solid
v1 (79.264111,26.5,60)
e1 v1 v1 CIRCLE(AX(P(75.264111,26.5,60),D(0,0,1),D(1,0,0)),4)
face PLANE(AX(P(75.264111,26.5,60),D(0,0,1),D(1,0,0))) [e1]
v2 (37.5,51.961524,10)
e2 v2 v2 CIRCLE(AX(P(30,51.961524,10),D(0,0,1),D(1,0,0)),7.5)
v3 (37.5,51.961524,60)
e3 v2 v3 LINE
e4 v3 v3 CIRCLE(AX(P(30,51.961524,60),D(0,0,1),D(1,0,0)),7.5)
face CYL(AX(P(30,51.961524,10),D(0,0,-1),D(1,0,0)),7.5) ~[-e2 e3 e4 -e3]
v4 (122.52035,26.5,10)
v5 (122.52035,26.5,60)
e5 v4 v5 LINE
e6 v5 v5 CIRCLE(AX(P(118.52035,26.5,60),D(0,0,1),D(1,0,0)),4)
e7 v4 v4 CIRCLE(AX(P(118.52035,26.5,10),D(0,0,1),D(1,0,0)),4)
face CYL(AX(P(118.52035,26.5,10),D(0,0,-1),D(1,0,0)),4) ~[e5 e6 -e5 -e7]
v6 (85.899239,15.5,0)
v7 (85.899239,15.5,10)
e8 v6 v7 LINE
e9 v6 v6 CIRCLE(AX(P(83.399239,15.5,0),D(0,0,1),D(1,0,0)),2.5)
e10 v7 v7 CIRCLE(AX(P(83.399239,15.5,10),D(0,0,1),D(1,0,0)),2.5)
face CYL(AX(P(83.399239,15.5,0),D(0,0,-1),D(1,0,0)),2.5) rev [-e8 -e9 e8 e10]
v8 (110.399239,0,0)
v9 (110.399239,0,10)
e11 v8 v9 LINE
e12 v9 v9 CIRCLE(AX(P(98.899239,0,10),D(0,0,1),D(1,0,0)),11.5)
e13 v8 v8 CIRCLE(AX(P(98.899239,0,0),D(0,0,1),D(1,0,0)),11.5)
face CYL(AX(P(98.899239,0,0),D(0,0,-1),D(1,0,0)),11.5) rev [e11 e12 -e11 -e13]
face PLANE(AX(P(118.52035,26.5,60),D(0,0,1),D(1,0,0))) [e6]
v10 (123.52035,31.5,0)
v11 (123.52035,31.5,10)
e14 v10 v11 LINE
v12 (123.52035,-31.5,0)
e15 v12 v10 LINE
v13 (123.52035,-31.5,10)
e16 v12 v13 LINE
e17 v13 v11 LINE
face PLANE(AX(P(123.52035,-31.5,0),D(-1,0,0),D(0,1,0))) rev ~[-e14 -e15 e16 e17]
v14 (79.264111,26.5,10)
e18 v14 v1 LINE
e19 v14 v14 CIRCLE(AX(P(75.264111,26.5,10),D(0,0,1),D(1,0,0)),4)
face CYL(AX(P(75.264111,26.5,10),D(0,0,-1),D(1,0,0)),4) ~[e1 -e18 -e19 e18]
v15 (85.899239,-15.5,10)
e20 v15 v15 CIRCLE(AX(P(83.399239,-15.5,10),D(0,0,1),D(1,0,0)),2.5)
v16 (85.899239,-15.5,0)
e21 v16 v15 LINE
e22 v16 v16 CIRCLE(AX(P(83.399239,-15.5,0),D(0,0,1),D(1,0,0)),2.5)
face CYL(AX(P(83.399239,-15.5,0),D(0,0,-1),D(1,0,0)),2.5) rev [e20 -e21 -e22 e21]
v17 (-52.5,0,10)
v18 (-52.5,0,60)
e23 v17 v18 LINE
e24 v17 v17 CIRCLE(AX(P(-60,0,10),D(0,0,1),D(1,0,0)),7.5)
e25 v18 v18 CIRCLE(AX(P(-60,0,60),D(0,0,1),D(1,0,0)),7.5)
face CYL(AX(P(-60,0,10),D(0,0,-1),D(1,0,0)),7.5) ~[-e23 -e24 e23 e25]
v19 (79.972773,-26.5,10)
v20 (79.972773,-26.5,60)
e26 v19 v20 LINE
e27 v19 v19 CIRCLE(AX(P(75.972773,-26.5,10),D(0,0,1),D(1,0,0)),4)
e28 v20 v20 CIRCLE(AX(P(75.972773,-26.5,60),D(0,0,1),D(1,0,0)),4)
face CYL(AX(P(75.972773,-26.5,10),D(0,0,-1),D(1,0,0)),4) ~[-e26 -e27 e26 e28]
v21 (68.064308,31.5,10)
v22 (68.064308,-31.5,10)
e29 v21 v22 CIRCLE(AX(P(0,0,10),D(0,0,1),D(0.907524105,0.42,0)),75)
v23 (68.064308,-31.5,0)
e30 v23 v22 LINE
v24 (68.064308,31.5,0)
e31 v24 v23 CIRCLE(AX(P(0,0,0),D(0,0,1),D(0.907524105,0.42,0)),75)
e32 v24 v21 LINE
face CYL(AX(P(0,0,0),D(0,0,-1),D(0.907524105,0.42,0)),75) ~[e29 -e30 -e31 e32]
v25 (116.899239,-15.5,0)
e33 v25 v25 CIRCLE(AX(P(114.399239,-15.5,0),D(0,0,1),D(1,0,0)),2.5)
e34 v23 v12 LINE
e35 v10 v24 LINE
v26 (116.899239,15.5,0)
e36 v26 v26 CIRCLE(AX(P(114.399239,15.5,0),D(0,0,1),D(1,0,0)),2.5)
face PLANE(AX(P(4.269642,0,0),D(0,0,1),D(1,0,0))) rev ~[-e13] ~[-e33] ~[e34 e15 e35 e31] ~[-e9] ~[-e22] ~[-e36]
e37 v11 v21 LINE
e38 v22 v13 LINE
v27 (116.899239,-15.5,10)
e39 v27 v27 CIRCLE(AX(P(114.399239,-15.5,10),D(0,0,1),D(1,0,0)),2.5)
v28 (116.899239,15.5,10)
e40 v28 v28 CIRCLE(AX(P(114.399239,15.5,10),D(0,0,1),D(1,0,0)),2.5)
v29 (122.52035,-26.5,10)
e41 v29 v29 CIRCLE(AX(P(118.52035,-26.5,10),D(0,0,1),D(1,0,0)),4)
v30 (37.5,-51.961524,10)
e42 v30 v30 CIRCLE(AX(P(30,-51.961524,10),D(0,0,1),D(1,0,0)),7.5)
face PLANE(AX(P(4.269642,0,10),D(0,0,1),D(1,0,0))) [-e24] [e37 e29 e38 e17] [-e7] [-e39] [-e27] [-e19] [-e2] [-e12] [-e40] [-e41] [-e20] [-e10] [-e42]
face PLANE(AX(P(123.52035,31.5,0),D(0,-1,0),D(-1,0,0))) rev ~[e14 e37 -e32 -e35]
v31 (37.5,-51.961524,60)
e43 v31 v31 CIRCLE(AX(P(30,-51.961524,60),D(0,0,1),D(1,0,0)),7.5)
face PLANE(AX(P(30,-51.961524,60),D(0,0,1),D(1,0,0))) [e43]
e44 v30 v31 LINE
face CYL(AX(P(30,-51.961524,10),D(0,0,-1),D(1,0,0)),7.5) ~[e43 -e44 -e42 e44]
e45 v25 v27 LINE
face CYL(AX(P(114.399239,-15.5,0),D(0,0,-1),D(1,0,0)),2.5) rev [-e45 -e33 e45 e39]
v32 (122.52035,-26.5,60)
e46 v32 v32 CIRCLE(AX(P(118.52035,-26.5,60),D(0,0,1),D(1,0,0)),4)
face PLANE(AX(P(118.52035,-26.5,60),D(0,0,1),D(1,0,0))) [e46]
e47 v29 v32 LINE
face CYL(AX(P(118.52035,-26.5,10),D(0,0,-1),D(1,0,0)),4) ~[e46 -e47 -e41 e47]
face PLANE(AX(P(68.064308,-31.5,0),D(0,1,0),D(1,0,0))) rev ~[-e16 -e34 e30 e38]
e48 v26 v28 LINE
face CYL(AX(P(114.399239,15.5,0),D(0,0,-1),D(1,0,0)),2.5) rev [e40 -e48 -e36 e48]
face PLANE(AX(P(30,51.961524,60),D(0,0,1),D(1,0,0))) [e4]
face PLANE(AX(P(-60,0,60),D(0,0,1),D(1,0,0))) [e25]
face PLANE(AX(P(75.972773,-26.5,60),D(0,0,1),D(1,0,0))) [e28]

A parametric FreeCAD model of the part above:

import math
import FreeCAD as App
import Part
import Sketcher

V = App.Vector
Q = App.Units.Quantity

doc = App.newDocument("Part")
body = doc.addObject("PartDesign::Body", "Body")

sketch1 = doc.addObject("Sketcher::SketchObject", "Sketch")
body.addObject(sketch1)
sketch1.AttachmentSupport = (doc.XY_Plane, [""])
sketch1.MapMode = "FlatFace"
sketch1.addGeometry(Part.ArcOfCircle(Part.Circle(V(0, 0, 0), V(0, 0, 1), 75), math.radians(24.834587), math.radians(335.165413)), False)
sketch1.addGeometry(Part.LineSegment(V(68.064308, -31.5, 0), V(123.52035, -31.5, 0)), False)
sketch1.addGeometry(Part.LineSegment(V(123.52035, -31.5, 0), V(123.52035, 31.5, 0)), False)
sketch1.addGeometry(Part.LineSegment(V(123.52035, 31.5, 0), V(68.064308, 31.5, 0)), False)
sketch1.addConstraint(Sketcher.Constraint("Coincident", 0, 2, 1, 1))
sketch1.addConstraint(Sketcher.Constraint("Coincident", 1, 2, 2, 1))
sketch1.addConstraint(Sketcher.Constraint("Coincident", 2, 2, 3, 1))
sketch1.addConstraint(Sketcher.Constraint("Coincident", 3, 2, 0, 1))
sketch1.addConstraint(Sketcher.Constraint("Horizontal", 1))
sketch1.addConstraint(Sketcher.Constraint("Vertical", 2))
sketch1.addConstraint(Sketcher.Constraint("Horizontal", 3))
sketch1.addConstraint(Sketcher.Constraint("Coincident", 0, 3, -1, 1))
sketch1.addConstraint(Sketcher.Constraint("Vertical", 0, 2, 3, 2))
sketch1.addConstraint(Sketcher.Constraint("Radius", 0, Q("75 mm")))
sketch1.addConstraint(Sketcher.Constraint("DistanceY", 2, 1, 2, 2, Q("63 mm")))
sketch1.addConstraint(Sketcher.Constraint("DistanceX", 1, 1, 1, 2, Q("55.456042 mm")))
pad1 = doc.addObject("PartDesign::Pad", "Pad")
body.addObject(pad1)
pad1.Profile = sketch1
pad1.Length = 10

sketch2 = doc.addObject("Sketcher::SketchObject", "Sketch001")
body.addObject(sketch2)
sketch2.AttachmentSupport = (doc.XY_Plane, [""])
sketch2.MapMode = "FlatFace"
sketch2.addGeometry(Part.Circle(V(114.399239, 15.5, 0), V(0, 0, 1), 2.5), False)
sketch2.addGeometry(Part.Circle(V(83.399239, 15.5, 0), V(0, 0, 1), 2.5), False)
sketch2.addGeometry(Part.Circle(V(83.399239, -15.5, 0), V(0, 0, 1), 2.5), False)
sketch2.addGeometry(Part.Circle(V(114.399239, -15.5, 0), V(0, 0, 1), 2.5), False)
sketch2.addConstraint(Sketcher.Constraint("Equal", 0, 1))
sketch2.addConstraint(Sketcher.Constraint("Equal", 1, 2))
sketch2.addConstraint(Sketcher.Constraint("Equal", 2, 3))
sketch2.addConstraint(Sketcher.Constraint("Symmetric", 1, 3, 2, 3, -1))
sketch2.addConstraint(Sketcher.Constraint("Symmetric", 0, 3, 3, 3, -1))
sketch2.addConstraint(Sketcher.Constraint("Horizontal", 0, 3, 1, 3))
sketch2.addConstraint(Sketcher.Constraint("Diameter", 0, Q("5 mm")))
sketch2.addConstraint(Sketcher.Constraint("DistanceX", 1, 3, 0, 3, Q("31 mm")))
sketch2.addConstraint(Sketcher.Constraint("DistanceY", 2, 3, 1, 3, Q("31 mm")))
sketch2.addConstraint(Sketcher.Constraint("DistanceX", -1, 1, 0, 3, Q("114.399239 mm")))
pocket1 = doc.addObject("PartDesign::Pocket", "Pocket")
body.addObject(pocket1)
pocket1.Profile = sketch2
pocket1.Type = "ThroughAll"
pocket1.Reversed = True

sketch3 = doc.addObject("Sketcher::SketchObject", "Sketch002")
body.addObject(sketch3)
sketch3.AttachmentSupport = (doc.XY_Plane, [""])
sketch3.MapMode = "FlatFace"
sketch3.addGeometry(Part.Circle(V(98.899239, 0, 0), V(0, 0, 1), 11.5), False)
sketch3.addConstraint(Sketcher.Constraint("PointOnObject", 0, 3, -1))
sketch3.addConstraint(Sketcher.Constraint("Diameter", 0, Q("23 mm")))
sketch3.addConstraint(Sketcher.Constraint("DistanceX", -1, 1, 0, 3, Q("98.899239 mm")))
pocket2 = doc.addObject("PartDesign::Pocket", "Pocket001")
body.addObject(pocket2)
pocket2.Profile = sketch3
pocket2.Type = "ThroughAll"
pocket2.Reversed = True

sketch4 = doc.addObject("Sketcher::SketchObject", "Sketch003")
body.addObject(sketch4)
sketch4.AttachmentSupport = (doc.XY_Plane, [""])
sketch4.MapMode = "FlatFace"
sketch4.AttachmentOffset = App.Placement(V(0, 0, 10), App.Rotation())
sketch4.addGeometry(Part.Circle(V(-60, 0, 0), V(0, 0, 1), 7.5), False)
sketch4.addGeometry(Part.Circle(V(30, 51.961524, 0), V(0, 0, 1), 7.5), False)
sketch4.addGeometry(Part.Circle(V(30, -51.961524, 0), V(0, 0, 1), 7.5), False)
sketch4.addGeometry(Part.Circle(V(75.972773, -26.5, 0), V(0, 0, 1), 4), False)
sketch4.addGeometry(Part.Circle(V(118.52035, -26.5, 0), V(0, 0, 1), 4), False)
sketch4.addGeometry(Part.Circle(V(75.264111, 26.5, 0), V(0, 0, 1), 4), False)
sketch4.addGeometry(Part.Circle(V(118.52035, 26.5, 0), V(0, 0, 1), 4), False)
sketch4.addConstraint(Sketcher.Constraint("Equal", 0, 1))
sketch4.addConstraint(Sketcher.Constraint("Equal", 1, 2))
sketch4.addConstraint(Sketcher.Constraint("Equal", 3, 4))
sketch4.addConstraint(Sketcher.Constraint("Equal", 4, 5))
sketch4.addConstraint(Sketcher.Constraint("Equal", 5, 6))
sketch4.addConstraint(Sketcher.Constraint("Symmetric", 1, 3, 2, 3, -1))
sketch4.addConstraint(Sketcher.Constraint("Symmetric", 4, 3, 6, 3, -1))
sketch4.addConstraint(Sketcher.Constraint("PointOnObject", 0, 3, -1))
sketch4.addConstraint(Sketcher.Constraint("Horizontal", 3, 3, 4, 3))
sketch4.addConstraint(Sketcher.Constraint("Horizontal", 5, 3, 6, 3))
sketch4.addConstraint(Sketcher.Constraint("Diameter", 0, Q("15 mm")))
sketch4.addConstraint(Sketcher.Constraint("Diameter", 3, Q("8 mm")))
sketch4.addConstraint(Sketcher.Constraint("DistanceX", 0, 3, -1, 1, Q("60 mm")))
sketch4.addConstraint(Sketcher.Constraint("DistanceX", -1, 1, 1, 3, Q("30 mm")))
sketch4.addConstraint(Sketcher.Constraint("DistanceY", 3, 3, 5, 3, Q("53 mm")))
sketch4.addConstraint(Sketcher.Constraint("DistanceX", -1, 1, 4, 3, Q("118.52035 mm")))
sketch4.addConstraint(Sketcher.Constraint("DistanceX", -1, 1, 5, 3, Q("75.264111 mm")))
sketch4.addConstraint(Sketcher.Constraint("DistanceY", -1, 1, 1, 3, Q("51.961524 mm")))
sketch4.addConstraint(Sketcher.Constraint("DistanceX", -1, 1, 3, 3, Q("75.972773 mm")))
pad2 = doc.addObject("PartDesign::Pad", "Pad001")
body.addObject(pad2)
pad2.Profile = sketch4
pad2.Length = 50

doc.recompute()
